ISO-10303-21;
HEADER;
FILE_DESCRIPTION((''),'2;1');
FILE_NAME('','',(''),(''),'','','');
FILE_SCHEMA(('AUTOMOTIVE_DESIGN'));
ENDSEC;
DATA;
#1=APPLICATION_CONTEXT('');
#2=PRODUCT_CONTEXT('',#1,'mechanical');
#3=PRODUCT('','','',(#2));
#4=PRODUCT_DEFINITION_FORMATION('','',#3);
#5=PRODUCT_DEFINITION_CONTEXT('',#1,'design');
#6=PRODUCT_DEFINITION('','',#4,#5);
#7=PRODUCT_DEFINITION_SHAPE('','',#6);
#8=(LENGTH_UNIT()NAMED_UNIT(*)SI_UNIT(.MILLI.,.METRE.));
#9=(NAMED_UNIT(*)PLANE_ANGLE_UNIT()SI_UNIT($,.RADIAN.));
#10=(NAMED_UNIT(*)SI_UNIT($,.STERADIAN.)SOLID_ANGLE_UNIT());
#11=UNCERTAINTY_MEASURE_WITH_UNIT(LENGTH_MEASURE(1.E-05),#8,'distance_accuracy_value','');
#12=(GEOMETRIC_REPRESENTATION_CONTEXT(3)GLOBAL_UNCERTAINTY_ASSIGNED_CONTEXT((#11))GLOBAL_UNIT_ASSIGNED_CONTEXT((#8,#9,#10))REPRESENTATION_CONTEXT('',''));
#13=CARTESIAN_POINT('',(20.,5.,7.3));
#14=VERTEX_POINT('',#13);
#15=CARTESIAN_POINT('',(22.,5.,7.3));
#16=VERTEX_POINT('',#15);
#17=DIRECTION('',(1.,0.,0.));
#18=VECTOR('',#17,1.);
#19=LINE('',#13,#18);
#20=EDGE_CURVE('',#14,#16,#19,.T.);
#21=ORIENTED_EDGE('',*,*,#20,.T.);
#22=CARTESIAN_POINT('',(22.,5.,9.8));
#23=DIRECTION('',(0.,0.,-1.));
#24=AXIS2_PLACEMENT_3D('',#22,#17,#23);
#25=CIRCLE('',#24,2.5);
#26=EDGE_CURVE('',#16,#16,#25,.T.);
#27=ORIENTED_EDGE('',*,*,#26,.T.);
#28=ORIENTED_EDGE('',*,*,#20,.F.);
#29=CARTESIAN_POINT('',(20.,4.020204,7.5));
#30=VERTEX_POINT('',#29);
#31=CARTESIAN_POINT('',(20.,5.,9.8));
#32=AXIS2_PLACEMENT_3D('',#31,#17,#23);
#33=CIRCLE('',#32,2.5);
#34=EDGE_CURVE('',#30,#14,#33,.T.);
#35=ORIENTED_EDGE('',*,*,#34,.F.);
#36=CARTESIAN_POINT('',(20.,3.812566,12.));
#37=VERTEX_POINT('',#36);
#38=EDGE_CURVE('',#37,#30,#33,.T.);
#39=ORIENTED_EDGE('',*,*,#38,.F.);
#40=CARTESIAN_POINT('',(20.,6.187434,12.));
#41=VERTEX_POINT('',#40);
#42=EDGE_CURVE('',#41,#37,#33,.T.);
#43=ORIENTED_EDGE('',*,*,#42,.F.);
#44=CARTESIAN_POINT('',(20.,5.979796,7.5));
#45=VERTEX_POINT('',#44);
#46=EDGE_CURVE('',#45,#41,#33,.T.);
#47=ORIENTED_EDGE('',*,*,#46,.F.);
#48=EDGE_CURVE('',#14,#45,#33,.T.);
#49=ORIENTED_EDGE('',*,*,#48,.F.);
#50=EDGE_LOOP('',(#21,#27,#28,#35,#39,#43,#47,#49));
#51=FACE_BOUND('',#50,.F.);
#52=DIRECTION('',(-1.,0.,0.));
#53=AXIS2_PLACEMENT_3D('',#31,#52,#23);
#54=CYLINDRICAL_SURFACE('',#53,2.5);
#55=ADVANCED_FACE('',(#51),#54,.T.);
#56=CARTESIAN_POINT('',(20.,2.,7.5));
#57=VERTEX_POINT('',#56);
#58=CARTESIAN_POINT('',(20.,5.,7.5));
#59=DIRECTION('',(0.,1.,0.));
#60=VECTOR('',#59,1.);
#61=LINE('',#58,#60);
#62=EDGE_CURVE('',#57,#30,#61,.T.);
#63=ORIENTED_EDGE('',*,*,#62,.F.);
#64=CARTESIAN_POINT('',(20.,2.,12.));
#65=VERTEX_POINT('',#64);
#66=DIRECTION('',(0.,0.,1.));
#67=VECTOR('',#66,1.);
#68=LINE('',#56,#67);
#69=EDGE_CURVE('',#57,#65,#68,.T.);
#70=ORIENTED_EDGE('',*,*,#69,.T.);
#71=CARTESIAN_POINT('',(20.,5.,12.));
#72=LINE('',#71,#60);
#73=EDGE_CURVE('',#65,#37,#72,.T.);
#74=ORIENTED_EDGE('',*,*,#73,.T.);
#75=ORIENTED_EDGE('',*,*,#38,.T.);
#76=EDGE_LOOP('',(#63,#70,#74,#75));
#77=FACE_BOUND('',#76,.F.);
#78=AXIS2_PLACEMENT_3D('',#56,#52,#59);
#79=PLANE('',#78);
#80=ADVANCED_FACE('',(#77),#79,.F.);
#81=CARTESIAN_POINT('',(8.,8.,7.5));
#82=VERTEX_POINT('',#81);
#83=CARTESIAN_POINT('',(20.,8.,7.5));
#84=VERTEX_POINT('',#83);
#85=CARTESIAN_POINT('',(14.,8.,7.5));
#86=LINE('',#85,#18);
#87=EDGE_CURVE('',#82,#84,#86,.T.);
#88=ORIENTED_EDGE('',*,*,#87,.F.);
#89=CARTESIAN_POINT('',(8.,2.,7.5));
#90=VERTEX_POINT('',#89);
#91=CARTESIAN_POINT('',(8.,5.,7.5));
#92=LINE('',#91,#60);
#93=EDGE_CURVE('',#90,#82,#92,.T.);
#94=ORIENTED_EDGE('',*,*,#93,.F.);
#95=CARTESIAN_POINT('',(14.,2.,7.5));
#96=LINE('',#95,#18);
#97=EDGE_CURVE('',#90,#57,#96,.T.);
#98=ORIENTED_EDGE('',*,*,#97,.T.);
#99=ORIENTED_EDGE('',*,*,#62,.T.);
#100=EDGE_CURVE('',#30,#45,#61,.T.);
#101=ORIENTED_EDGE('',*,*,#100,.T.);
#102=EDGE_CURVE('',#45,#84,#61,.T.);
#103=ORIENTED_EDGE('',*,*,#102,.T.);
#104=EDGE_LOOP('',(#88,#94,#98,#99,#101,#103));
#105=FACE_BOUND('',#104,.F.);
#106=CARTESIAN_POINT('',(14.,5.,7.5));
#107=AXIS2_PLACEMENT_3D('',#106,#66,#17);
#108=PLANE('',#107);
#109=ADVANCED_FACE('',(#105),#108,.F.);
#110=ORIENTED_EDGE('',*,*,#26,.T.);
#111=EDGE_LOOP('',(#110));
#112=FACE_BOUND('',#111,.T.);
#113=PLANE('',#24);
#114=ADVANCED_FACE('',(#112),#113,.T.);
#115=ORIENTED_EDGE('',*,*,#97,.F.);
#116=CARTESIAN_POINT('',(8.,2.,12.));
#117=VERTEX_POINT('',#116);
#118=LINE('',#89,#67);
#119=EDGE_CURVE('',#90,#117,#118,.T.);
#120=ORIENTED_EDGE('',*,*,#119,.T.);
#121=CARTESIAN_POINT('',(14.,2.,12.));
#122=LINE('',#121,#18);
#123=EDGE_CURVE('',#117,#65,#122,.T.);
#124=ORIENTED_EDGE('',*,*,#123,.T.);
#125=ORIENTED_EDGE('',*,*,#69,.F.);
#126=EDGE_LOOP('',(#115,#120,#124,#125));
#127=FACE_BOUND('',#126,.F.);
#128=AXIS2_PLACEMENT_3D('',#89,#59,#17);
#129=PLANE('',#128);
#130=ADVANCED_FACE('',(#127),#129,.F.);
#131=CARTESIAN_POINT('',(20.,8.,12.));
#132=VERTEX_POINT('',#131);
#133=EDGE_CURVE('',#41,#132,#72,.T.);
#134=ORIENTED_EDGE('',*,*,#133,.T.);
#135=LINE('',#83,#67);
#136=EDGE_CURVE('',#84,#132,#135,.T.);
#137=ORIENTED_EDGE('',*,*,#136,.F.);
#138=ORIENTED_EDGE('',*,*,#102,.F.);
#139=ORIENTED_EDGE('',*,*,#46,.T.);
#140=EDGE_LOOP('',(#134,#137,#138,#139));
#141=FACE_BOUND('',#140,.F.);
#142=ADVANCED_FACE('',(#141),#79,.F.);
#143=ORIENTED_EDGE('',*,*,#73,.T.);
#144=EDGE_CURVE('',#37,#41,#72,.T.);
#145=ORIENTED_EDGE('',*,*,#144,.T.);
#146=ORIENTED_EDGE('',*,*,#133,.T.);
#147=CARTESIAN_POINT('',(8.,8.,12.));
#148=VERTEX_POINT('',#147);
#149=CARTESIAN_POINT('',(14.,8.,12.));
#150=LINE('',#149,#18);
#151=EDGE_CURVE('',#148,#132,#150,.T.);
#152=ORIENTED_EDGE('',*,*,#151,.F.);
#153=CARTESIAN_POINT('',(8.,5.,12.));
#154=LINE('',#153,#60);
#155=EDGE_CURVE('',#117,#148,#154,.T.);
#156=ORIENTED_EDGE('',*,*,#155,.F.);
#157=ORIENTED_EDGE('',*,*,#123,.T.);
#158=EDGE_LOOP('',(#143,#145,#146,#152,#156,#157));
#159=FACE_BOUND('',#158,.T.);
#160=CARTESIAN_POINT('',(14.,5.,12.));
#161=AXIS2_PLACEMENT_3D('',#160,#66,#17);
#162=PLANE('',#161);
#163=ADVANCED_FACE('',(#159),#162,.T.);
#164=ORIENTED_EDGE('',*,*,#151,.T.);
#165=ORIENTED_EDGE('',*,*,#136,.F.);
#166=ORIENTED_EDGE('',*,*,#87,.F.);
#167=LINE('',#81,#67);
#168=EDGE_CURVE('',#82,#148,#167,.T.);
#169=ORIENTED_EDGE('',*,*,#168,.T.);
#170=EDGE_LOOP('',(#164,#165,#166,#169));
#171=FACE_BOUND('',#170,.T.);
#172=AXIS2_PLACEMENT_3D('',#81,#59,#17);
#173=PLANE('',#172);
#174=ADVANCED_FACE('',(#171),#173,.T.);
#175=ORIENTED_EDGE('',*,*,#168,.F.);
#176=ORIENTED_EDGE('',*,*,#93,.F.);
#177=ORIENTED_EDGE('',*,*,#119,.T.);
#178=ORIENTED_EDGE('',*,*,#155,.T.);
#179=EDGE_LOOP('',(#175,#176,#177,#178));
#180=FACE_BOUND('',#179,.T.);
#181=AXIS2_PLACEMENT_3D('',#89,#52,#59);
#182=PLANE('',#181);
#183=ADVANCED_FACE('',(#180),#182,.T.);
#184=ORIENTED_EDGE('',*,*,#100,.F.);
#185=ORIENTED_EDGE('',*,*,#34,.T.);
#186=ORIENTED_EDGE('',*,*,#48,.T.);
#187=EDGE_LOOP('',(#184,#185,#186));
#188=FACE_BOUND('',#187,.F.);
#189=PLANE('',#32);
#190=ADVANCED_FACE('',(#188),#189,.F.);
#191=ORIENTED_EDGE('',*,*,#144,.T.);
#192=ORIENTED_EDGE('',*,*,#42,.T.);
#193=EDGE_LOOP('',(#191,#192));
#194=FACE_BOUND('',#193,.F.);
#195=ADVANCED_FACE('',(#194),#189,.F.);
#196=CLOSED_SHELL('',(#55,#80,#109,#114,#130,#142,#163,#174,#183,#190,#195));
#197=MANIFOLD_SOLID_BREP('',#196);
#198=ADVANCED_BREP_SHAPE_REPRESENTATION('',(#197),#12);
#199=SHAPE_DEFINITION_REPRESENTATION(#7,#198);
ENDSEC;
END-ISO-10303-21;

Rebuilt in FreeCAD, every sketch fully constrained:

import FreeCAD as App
import Part
import Sketcher
Q = App.Units.Quantity

doc = App.newDocument("Part")
body = doc.addObject("PartDesign::Body", "Body")

# Sketch on XY plane
sketch1 = doc.addObject("Sketcher::SketchObject", "Sketch")
body.addObject(sketch1)
sketch1.AttachmentSupport = (doc.XY_Plane, [""])
sketch1.MapMode = "FlatFace"
sketch1.AttachmentOffset = App.Placement(App.Vector(0, 0, 18), App.Rotation())
sketch1.addGeometry(Part.LineSegment(App.Vector(0, 6, 0), App.Vector(0, 0, 0)), False)
sketch1.addGeometry(Part.LineSegment(App.Vector(0, 0, 0), App.Vector(12, 0, 0)), False)
sketch1.addGeometry(Part.LineSegment(App.Vector(12, 0, 0), App.Vector(12, 6, 0)), False)
sketch1.addGeometry(Part.LineSegment(App.Vector(12, 6, 0), App.Vector(0, 6, 0)), False)
sketch1.addConstraint(Sketcher.Constraint("Coincident", 0, 2, 1, 1))
sketch1.addConstraint(Sketcher.Constraint("Coincident", 1, 2, 2, 1))
sketch1.addConstraint(Sketcher.Constraint("Coincident", 2, 2, 3, 1))
sketch1.addConstraint(Sketcher.Constraint("Coincident", 3, 2, 0, 1))
sketch1.addConstraint(Sketcher.Constraint("Vertical", 0))
sketch1.addConstraint(Sketcher.Constraint("Horizontal", 1))
sketch1.addConstraint(Sketcher.Constraint("Vertical", 2))
sketch1.addConstraint(Sketcher.Constraint("Horizontal", 3))
sketch1.addConstraint(Sketcher.Constraint("Coincident", 0, 2, -1, 1))
sketch1.addConstraint(Sketcher.Constraint("DistanceX", 1, 1, 1, 2, Q("12 mm")))
sketch1.addConstraint(Sketcher.Constraint("DistanceY", 0, 2, 0, 1, Q("6 mm")))
pad1 = doc.addObject("PartDesign::Pad", "Pad")
body.addObject(pad1)
pad1.Profile = sketch1
pad1.Length = 4.5
body2 = doc.addObject("PartDesign::Body", "Body001")

# Sketch on XY plane
sketch2 = doc.addObject("Sketcher::SketchObject", "Sketch001")
body2.addObject(sketch2)
sketch2.AttachmentSupport = (doc.getObject("XY_Plane001"), [""])
sketch2.MapMode = "FlatFace"
sketch2.addGeometry(Part.Circle(App.Vector(0, 0, 0), App.Vector(0, 0, 1), 2.5), False)
sketch2.addConstraint(Sketcher.Constraint("Coincident", 0, 3, -1, 1))
sketch2.addConstraint(Sketcher.Constraint("Diameter", 0, Q("5 mm")))
pad2 = doc.addObject("PartDesign::Pad", "Pad001")
body2.addObject(pad2)
pad2.Profile = sketch2
pad2.Length = 2
body3 = doc.addObject("PartDesign::Body", "Body002")
doc.recompute()

body2.Placement = App.Placement(App.Vector(0, 0, 0), App.Rotation(App.Vector(0, 1, 0), 90))
boolean = doc.addObject("PartDesign::Boolean", "Boolean")
body3.addObject(boolean)
boolean.Type = "Fuse"
boolean.addObjects([body2])
body4 = doc.addObject("PartDesign::Body", "Body003")
doc.recompute()

body3.Placement = App.Placement(App.Vector(12, 3, 20.3), App.Rotation(App.Vector(0, 0, 1), 0))
boolean2 = doc.addObject("PartDesign::Boolean", "Boolean001")
body4.addObject(boolean2)
boolean2.Type = "Fuse"
boolean2.addObjects([body3])
doc.recompute()

boolean3 = doc.addObject("PartDesign::Boolean", "Boolean002")
body4.addObject(boolean3)
boolean3.Type = "Fuse"
boolean3.addObjects([body])
body5 = doc.addObject("PartDesign::Body", "Body004")
doc.recompute()

body4.Placement = App.Placement(App.Vector(8, 2, -10.5), App.Rotation(App.Vector(0, 0, 1), 0))
boolean4 = doc.addObject("PartDesign::Boolean", "Boolean003")
body5.addObject(boolean4)
boolean4.Type = "Fuse"
boolean4.addObjects([body4])

doc.recompute()
